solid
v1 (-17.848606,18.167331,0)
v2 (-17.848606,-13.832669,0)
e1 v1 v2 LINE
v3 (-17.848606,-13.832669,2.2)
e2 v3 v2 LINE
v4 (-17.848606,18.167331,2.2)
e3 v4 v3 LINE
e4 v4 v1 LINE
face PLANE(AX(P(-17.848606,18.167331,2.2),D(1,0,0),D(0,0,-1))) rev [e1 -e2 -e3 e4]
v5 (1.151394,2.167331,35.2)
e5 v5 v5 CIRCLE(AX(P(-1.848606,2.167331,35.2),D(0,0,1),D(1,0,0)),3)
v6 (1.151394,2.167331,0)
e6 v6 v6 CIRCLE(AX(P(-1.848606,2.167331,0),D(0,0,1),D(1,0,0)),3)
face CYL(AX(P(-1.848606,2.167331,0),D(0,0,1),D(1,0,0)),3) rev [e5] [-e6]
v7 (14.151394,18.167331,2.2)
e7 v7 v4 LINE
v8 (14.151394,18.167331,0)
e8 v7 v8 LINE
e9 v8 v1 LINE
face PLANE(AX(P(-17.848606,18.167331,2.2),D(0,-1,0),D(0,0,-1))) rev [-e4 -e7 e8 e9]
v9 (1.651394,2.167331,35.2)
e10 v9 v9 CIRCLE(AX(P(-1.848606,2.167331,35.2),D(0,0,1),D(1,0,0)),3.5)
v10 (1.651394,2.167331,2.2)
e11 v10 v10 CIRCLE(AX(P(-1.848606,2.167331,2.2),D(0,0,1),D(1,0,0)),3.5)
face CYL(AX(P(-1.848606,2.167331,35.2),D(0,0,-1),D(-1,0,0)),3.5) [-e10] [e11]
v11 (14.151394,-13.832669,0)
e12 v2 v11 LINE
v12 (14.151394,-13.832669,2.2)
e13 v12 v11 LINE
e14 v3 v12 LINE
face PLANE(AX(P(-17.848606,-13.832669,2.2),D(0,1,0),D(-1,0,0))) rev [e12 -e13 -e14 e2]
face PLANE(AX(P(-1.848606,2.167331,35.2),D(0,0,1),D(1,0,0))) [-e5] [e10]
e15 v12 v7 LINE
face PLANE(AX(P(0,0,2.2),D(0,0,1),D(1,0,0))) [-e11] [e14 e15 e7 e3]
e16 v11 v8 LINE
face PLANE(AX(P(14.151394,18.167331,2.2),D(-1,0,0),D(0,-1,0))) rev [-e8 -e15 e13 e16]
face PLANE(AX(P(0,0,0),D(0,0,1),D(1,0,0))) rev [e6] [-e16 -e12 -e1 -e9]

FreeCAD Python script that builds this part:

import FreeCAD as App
import Part
import Sketcher
Q = App.Units.Quantity


def add_polygon(sketch, points):
    """Adds a closed chain of lines whose ends are joined by coincident constraints."""
    first, n = sketch.GeometryCount, len(points)
    for a, b in zip(points, points[1:] + points[:1]):
        sketch.addGeometry(Part.LineSegment(App.Vector(*a, 0), App.Vector(*b, 0)), False)
    for i in range(n):
        sketch.addConstraint(Sketcher.Constraint("Coincident", first + i, 2, first + (i + 1) % n, 1))

doc = App.newDocument("Part")
body = doc.addObject("PartDesign::Body", "Body")

# Sketch on XY plane
sketch1 = body.newObject("Sketcher::SketchObject", "Sketch")
sketch1.AttachmentSupport = (doc.getObject("XY_Plane"), [""])
sketch1.MapMode = "FlatFace"
add_polygon(sketch1, [(-18, 18), (-18, -14), (14, -14), (14, 18)])  # lines 0-3
sketch1.addConstraint(Sketcher.Constraint("Vertical", 0))
sketch1.addConstraint(Sketcher.Constraint("Horizontal", 1))
sketch1.addConstraint(Sketcher.Constraint("Vertical", 2))
sketch1.addConstraint(Sketcher.Constraint("Horizontal", 3))
sketch1.addConstraint(Sketcher.Constraint("Equal", 3, 0))
sketch1.addConstraint(Sketcher.Constraint("DistanceX", 1, 1, 1, 2, Q("32 mm")))
sketch1.addConstraint(Sketcher.Constraint("DistanceY", 0, 2, -1, 1, Q("13.832669 mm")))
sketch1.addConstraint(Sketcher.Constraint("DistanceX", 0, 2, -1, 1, Q("17.848606 mm")))
pad1 = body.newObject("PartDesign::Pad", "Pad")
pad1.Profile = sketch1
pad1.Length = 2.2

# Sketch on XY plane
sketch2 = body.newObject("Sketcher::SketchObject", "Sketch001")
sketch2.AttachmentSupport = (doc.getObject("XY_Plane"), [""])
sketch2.MapMode = "FlatFace"
sketch2.AttachmentOffset = App.Placement(App.Vector(0, 0, 2.2), App.Rotation())
sketch2.addGeometry(Part.Circle(App.Vector(-1.8, 2.2, 0), App.Vector(0, 0, 1), 3.5), False)
sketch2.addConstraint(Sketcher.Constraint("Diameter", 0, Q("7 mm")))
sketch2.addConstraint(Sketcher.Constraint("DistanceY", -1, 1, 0, 3, Q("2.167331 mm")))
sketch2.addConstraint(Sketcher.Constraint("DistanceX", 0, 3, -1, 1, Q("1.848606 mm")))
pad2 = body.newObject("PartDesign::Pad", "Pad001")
pad2.Profile = sketch2
pad2.Length = 33

# Sketch on XY plane
sketch3 = body.newObject("Sketcher::SketchObject", "Sketch002")
sketch3.AttachmentSupport = (doc.getObject("XY_Plane"), [""])
sketch3.MapMode = "FlatFace"
sketch3.AttachmentOffset = App.Placement(App.Vector(0, 0, 35.2), App.Rotation())
sketch3.addGeometry(Part.Circle(App.Vector(-1.8, 2.2, 0), App.Vector(0, 0, 1), 3), False)
sketch3.addConstraint(Sketcher.Constraint("Diameter", 0, Q("6 mm")))
sketch3.addConstraint(Sketcher.Constraint("DistanceY", -1, 1, 0, 3, Q("2.167331 mm")))
sketch3.addConstraint(Sketcher.Constraint("DistanceX", 0, 3, -1, 1, Q("1.848606 mm")))
pocket1 = body.newObject("PartDesign::Pocket", "Pocket")
pocket1.Profile = sketch3
pocket1.Type = "ThroughAll"

doc.recompute()
